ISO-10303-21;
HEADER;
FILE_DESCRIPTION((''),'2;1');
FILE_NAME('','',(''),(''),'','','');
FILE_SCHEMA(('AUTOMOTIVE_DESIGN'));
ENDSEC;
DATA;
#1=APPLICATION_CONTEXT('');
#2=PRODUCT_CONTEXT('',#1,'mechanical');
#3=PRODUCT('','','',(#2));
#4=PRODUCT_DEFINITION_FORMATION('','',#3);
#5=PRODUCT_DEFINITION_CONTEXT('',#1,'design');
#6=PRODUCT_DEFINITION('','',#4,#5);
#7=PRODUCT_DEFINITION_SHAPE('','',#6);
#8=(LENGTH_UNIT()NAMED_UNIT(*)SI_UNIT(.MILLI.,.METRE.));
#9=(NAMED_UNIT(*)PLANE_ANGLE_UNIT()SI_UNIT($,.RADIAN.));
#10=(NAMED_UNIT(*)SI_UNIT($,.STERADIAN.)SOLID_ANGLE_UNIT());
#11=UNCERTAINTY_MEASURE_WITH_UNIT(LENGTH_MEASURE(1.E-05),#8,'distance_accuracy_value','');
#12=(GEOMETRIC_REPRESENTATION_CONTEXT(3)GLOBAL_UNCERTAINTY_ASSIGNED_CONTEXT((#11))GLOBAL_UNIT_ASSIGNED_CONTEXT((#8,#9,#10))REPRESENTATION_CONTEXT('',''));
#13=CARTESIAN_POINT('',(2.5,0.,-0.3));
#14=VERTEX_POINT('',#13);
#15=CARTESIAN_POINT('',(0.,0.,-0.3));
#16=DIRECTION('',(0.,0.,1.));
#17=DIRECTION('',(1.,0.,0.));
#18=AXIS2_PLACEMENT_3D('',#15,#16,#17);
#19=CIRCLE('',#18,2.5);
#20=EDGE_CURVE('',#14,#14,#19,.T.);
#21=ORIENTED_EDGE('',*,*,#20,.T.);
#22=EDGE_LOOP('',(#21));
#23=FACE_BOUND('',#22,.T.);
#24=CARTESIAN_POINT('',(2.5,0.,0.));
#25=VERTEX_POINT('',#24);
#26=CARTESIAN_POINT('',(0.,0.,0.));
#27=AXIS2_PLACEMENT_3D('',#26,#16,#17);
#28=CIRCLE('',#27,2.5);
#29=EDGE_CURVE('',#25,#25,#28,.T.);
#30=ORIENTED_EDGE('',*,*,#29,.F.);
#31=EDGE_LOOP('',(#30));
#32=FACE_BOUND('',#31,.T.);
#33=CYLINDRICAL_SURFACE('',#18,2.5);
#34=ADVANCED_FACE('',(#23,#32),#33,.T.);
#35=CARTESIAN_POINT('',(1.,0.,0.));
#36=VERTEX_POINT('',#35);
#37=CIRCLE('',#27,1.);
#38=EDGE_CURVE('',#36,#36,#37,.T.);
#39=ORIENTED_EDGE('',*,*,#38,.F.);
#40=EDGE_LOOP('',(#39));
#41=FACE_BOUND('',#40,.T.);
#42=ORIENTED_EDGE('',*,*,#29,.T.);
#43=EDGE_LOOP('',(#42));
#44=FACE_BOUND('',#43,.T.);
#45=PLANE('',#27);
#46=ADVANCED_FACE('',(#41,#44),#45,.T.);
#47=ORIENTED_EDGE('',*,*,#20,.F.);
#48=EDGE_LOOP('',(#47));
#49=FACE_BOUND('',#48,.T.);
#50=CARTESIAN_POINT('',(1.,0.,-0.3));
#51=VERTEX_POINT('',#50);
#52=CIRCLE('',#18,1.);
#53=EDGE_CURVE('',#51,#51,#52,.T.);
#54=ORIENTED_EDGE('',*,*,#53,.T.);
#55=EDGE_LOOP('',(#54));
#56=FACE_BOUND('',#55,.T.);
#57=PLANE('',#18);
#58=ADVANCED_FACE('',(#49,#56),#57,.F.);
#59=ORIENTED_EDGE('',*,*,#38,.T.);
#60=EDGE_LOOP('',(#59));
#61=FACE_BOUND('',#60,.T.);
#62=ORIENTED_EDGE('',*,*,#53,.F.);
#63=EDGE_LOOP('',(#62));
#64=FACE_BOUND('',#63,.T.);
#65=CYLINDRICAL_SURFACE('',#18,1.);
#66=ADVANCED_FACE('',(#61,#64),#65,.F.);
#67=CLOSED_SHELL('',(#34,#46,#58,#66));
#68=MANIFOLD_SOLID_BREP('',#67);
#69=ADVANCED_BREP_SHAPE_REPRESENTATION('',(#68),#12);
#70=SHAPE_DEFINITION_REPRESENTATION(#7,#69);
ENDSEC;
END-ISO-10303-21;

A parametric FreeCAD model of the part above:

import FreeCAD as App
import Part
import Sketcher

V = App.Vector
Q = App.Units.Quantity

doc = App.newDocument("Part")
body = doc.addObject("PartDesign::Body", "Body")

sketch1 = doc.addObject("Sketcher::SketchObject", "Sketch")
body.addObject(sketch1)
sketch1.AttachmentSupport = (doc.XY_Plane, [""])
sketch1.MapMode = "FlatFace"
sketch1.addGeometry(Part.Circle(V(0, 0, 0), V(0, 0, 1), 2.5), False)
sketch1.addGeometry(Part.Circle(V(0, 0, 0), V(0, 0, 1), 1), False)
sketch1.addConstraint(Sketcher.Constraint("Coincident", 0, 3, -1, 1))
sketch1.addConstraint(Sketcher.Constraint("Coincident", 1, 3, -1, 1))
sketch1.addConstraint(Sketcher.Constraint("Diameter", 0, Q("5 mm")))
sketch1.addConstraint(Sketcher.Constraint("Diameter", 1, Q("2 mm")))
pad1 = doc.addObject("PartDesign::Pad", "Pad")
body.addObject(pad1)
pad1.Profile = sketch1
pad1.Length = 0.3
pad1.Reversed = True

doc.recompute()
